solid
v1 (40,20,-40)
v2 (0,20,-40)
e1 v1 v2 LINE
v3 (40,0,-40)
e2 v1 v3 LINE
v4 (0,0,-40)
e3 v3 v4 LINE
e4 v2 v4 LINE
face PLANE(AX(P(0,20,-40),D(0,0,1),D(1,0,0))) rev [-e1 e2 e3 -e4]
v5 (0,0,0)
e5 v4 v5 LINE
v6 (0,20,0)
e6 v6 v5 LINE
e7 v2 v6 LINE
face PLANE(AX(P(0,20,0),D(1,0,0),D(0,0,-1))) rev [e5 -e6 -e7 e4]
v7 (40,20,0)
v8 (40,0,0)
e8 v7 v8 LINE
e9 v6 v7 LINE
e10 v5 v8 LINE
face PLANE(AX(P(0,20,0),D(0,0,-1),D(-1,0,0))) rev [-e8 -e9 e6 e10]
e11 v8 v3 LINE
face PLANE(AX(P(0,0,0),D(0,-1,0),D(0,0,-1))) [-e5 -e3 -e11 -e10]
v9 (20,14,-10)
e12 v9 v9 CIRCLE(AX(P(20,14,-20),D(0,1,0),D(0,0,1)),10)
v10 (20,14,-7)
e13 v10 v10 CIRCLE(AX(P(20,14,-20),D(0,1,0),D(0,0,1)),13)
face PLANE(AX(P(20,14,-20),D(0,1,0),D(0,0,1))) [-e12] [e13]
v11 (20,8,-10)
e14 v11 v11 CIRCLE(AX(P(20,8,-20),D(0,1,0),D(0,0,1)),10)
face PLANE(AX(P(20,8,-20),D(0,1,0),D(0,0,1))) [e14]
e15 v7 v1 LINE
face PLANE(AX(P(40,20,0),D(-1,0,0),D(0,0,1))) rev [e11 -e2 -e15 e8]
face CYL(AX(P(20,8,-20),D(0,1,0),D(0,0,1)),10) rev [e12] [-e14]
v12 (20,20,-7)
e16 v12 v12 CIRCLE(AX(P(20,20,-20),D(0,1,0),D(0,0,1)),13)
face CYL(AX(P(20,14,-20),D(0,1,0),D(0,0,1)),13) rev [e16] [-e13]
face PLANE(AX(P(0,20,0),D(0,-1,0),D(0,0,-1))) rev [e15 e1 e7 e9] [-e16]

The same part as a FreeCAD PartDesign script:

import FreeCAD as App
import Part
import Sketcher

V = App.Vector


def add_polygon(sketch, points):
    """Adds a closed chain of lines whose ends are joined by coincident constraints."""
    first, n = sketch.GeometryCount, len(points)
    for a, b in zip(points, points[1:] + points[:1]):
        sketch.addGeometry(Part.LineSegment(App.Vector(*a, 0), App.Vector(*b, 0)), False)
    for i in range(n):
        sketch.addConstraint(Sketcher.Constraint("Coincident", first + i, 2, first + (i + 1) % n, 1))

doc = App.newDocument("Part")
body = doc.addObject("PartDesign::Body", "Body")

sketch1 = body.newObject("Sketcher::SketchObject", "Sketch")
sketch1.AttachmentSupport = (doc.getObject("XZ_Plane"), [""])
sketch1.MapMode = "FlatFace"
add_polygon(sketch1, [(0, -40), (0, 0), (40, 0), (40, -40)])
sketch1.addConstraint([
    Sketcher.Constraint("Vertical", 0),
    Sketcher.Constraint("Horizontal", 1),
    Sketcher.Constraint("Vertical", 2),
    Sketcher.Constraint("Horizontal", 3),
    Sketcher.Constraint("Coincident", 0, 2, -1, 1),
    Sketcher.Constraint("Equal", 3, 0),
    Sketcher.Constraint("DistanceX", 1, 1, 1, 2, 40.0),
])
pad1 = body.newObject("PartDesign::Pad", "Pad")
pad1.Profile = sketch1
pad1.Length = 20
pad1.Reversed = True

sketch2 = body.newObject("Sketcher::SketchObject", "Sketch001")
sketch2.AttachmentSupport = (doc.getObject("XZ_Plane"), [""])
sketch2.MapMode = "FlatFace"
sketch2.AttachmentOffset = App.Placement(V(0, 0, -20), App.Rotation())
sketch2.addGeometry(Part.Circle(V(20, -20, 0), V(0, 0, 1), 13), False)
sketch2.addConstraint([
    Sketcher.Constraint("Diameter", 0, 26.0),
    Sketcher.Constraint("DistanceX", -1, 1, 0, 3, 20.0),
    Sketcher.Constraint("DistanceY", 0, 3, -1, 1, 20.0),
])
pocket1 = body.newObject("PartDesign::Pocket", "Pocket")
pocket1.Profile = sketch2
pocket1.Length = 6
pocket1.Reversed = True

sketch3 = body.newObject("Sketcher::SketchObject", "Sketch002")
sketch3.AttachmentSupport = (doc.getObject("XZ_Plane"), [""])
sketch3.MapMode = "FlatFace"
sketch3.AttachmentOffset = App.Placement(V(0, 0, -14), App.Rotation())
sketch3.addGeometry(Part.Circle(V(20, -20, 0), V(0, 0, 1), 10), False)
sketch3.addConstraint([
    Sketcher.Constraint("Diameter", 0, 20.0),
    Sketcher.Constraint("DistanceX", -1, 1, 0, 3, 20.0),
    Sketcher.Constraint("DistanceY", 0, 3, -1, 1, 20.0),
])
pocket2 = body.newObject("PartDesign::Pocket", "Pocket001")
pocket2.Profile = sketch3
pocket2.Length = 6
pocket2.Reversed = True

doc.recompute()
